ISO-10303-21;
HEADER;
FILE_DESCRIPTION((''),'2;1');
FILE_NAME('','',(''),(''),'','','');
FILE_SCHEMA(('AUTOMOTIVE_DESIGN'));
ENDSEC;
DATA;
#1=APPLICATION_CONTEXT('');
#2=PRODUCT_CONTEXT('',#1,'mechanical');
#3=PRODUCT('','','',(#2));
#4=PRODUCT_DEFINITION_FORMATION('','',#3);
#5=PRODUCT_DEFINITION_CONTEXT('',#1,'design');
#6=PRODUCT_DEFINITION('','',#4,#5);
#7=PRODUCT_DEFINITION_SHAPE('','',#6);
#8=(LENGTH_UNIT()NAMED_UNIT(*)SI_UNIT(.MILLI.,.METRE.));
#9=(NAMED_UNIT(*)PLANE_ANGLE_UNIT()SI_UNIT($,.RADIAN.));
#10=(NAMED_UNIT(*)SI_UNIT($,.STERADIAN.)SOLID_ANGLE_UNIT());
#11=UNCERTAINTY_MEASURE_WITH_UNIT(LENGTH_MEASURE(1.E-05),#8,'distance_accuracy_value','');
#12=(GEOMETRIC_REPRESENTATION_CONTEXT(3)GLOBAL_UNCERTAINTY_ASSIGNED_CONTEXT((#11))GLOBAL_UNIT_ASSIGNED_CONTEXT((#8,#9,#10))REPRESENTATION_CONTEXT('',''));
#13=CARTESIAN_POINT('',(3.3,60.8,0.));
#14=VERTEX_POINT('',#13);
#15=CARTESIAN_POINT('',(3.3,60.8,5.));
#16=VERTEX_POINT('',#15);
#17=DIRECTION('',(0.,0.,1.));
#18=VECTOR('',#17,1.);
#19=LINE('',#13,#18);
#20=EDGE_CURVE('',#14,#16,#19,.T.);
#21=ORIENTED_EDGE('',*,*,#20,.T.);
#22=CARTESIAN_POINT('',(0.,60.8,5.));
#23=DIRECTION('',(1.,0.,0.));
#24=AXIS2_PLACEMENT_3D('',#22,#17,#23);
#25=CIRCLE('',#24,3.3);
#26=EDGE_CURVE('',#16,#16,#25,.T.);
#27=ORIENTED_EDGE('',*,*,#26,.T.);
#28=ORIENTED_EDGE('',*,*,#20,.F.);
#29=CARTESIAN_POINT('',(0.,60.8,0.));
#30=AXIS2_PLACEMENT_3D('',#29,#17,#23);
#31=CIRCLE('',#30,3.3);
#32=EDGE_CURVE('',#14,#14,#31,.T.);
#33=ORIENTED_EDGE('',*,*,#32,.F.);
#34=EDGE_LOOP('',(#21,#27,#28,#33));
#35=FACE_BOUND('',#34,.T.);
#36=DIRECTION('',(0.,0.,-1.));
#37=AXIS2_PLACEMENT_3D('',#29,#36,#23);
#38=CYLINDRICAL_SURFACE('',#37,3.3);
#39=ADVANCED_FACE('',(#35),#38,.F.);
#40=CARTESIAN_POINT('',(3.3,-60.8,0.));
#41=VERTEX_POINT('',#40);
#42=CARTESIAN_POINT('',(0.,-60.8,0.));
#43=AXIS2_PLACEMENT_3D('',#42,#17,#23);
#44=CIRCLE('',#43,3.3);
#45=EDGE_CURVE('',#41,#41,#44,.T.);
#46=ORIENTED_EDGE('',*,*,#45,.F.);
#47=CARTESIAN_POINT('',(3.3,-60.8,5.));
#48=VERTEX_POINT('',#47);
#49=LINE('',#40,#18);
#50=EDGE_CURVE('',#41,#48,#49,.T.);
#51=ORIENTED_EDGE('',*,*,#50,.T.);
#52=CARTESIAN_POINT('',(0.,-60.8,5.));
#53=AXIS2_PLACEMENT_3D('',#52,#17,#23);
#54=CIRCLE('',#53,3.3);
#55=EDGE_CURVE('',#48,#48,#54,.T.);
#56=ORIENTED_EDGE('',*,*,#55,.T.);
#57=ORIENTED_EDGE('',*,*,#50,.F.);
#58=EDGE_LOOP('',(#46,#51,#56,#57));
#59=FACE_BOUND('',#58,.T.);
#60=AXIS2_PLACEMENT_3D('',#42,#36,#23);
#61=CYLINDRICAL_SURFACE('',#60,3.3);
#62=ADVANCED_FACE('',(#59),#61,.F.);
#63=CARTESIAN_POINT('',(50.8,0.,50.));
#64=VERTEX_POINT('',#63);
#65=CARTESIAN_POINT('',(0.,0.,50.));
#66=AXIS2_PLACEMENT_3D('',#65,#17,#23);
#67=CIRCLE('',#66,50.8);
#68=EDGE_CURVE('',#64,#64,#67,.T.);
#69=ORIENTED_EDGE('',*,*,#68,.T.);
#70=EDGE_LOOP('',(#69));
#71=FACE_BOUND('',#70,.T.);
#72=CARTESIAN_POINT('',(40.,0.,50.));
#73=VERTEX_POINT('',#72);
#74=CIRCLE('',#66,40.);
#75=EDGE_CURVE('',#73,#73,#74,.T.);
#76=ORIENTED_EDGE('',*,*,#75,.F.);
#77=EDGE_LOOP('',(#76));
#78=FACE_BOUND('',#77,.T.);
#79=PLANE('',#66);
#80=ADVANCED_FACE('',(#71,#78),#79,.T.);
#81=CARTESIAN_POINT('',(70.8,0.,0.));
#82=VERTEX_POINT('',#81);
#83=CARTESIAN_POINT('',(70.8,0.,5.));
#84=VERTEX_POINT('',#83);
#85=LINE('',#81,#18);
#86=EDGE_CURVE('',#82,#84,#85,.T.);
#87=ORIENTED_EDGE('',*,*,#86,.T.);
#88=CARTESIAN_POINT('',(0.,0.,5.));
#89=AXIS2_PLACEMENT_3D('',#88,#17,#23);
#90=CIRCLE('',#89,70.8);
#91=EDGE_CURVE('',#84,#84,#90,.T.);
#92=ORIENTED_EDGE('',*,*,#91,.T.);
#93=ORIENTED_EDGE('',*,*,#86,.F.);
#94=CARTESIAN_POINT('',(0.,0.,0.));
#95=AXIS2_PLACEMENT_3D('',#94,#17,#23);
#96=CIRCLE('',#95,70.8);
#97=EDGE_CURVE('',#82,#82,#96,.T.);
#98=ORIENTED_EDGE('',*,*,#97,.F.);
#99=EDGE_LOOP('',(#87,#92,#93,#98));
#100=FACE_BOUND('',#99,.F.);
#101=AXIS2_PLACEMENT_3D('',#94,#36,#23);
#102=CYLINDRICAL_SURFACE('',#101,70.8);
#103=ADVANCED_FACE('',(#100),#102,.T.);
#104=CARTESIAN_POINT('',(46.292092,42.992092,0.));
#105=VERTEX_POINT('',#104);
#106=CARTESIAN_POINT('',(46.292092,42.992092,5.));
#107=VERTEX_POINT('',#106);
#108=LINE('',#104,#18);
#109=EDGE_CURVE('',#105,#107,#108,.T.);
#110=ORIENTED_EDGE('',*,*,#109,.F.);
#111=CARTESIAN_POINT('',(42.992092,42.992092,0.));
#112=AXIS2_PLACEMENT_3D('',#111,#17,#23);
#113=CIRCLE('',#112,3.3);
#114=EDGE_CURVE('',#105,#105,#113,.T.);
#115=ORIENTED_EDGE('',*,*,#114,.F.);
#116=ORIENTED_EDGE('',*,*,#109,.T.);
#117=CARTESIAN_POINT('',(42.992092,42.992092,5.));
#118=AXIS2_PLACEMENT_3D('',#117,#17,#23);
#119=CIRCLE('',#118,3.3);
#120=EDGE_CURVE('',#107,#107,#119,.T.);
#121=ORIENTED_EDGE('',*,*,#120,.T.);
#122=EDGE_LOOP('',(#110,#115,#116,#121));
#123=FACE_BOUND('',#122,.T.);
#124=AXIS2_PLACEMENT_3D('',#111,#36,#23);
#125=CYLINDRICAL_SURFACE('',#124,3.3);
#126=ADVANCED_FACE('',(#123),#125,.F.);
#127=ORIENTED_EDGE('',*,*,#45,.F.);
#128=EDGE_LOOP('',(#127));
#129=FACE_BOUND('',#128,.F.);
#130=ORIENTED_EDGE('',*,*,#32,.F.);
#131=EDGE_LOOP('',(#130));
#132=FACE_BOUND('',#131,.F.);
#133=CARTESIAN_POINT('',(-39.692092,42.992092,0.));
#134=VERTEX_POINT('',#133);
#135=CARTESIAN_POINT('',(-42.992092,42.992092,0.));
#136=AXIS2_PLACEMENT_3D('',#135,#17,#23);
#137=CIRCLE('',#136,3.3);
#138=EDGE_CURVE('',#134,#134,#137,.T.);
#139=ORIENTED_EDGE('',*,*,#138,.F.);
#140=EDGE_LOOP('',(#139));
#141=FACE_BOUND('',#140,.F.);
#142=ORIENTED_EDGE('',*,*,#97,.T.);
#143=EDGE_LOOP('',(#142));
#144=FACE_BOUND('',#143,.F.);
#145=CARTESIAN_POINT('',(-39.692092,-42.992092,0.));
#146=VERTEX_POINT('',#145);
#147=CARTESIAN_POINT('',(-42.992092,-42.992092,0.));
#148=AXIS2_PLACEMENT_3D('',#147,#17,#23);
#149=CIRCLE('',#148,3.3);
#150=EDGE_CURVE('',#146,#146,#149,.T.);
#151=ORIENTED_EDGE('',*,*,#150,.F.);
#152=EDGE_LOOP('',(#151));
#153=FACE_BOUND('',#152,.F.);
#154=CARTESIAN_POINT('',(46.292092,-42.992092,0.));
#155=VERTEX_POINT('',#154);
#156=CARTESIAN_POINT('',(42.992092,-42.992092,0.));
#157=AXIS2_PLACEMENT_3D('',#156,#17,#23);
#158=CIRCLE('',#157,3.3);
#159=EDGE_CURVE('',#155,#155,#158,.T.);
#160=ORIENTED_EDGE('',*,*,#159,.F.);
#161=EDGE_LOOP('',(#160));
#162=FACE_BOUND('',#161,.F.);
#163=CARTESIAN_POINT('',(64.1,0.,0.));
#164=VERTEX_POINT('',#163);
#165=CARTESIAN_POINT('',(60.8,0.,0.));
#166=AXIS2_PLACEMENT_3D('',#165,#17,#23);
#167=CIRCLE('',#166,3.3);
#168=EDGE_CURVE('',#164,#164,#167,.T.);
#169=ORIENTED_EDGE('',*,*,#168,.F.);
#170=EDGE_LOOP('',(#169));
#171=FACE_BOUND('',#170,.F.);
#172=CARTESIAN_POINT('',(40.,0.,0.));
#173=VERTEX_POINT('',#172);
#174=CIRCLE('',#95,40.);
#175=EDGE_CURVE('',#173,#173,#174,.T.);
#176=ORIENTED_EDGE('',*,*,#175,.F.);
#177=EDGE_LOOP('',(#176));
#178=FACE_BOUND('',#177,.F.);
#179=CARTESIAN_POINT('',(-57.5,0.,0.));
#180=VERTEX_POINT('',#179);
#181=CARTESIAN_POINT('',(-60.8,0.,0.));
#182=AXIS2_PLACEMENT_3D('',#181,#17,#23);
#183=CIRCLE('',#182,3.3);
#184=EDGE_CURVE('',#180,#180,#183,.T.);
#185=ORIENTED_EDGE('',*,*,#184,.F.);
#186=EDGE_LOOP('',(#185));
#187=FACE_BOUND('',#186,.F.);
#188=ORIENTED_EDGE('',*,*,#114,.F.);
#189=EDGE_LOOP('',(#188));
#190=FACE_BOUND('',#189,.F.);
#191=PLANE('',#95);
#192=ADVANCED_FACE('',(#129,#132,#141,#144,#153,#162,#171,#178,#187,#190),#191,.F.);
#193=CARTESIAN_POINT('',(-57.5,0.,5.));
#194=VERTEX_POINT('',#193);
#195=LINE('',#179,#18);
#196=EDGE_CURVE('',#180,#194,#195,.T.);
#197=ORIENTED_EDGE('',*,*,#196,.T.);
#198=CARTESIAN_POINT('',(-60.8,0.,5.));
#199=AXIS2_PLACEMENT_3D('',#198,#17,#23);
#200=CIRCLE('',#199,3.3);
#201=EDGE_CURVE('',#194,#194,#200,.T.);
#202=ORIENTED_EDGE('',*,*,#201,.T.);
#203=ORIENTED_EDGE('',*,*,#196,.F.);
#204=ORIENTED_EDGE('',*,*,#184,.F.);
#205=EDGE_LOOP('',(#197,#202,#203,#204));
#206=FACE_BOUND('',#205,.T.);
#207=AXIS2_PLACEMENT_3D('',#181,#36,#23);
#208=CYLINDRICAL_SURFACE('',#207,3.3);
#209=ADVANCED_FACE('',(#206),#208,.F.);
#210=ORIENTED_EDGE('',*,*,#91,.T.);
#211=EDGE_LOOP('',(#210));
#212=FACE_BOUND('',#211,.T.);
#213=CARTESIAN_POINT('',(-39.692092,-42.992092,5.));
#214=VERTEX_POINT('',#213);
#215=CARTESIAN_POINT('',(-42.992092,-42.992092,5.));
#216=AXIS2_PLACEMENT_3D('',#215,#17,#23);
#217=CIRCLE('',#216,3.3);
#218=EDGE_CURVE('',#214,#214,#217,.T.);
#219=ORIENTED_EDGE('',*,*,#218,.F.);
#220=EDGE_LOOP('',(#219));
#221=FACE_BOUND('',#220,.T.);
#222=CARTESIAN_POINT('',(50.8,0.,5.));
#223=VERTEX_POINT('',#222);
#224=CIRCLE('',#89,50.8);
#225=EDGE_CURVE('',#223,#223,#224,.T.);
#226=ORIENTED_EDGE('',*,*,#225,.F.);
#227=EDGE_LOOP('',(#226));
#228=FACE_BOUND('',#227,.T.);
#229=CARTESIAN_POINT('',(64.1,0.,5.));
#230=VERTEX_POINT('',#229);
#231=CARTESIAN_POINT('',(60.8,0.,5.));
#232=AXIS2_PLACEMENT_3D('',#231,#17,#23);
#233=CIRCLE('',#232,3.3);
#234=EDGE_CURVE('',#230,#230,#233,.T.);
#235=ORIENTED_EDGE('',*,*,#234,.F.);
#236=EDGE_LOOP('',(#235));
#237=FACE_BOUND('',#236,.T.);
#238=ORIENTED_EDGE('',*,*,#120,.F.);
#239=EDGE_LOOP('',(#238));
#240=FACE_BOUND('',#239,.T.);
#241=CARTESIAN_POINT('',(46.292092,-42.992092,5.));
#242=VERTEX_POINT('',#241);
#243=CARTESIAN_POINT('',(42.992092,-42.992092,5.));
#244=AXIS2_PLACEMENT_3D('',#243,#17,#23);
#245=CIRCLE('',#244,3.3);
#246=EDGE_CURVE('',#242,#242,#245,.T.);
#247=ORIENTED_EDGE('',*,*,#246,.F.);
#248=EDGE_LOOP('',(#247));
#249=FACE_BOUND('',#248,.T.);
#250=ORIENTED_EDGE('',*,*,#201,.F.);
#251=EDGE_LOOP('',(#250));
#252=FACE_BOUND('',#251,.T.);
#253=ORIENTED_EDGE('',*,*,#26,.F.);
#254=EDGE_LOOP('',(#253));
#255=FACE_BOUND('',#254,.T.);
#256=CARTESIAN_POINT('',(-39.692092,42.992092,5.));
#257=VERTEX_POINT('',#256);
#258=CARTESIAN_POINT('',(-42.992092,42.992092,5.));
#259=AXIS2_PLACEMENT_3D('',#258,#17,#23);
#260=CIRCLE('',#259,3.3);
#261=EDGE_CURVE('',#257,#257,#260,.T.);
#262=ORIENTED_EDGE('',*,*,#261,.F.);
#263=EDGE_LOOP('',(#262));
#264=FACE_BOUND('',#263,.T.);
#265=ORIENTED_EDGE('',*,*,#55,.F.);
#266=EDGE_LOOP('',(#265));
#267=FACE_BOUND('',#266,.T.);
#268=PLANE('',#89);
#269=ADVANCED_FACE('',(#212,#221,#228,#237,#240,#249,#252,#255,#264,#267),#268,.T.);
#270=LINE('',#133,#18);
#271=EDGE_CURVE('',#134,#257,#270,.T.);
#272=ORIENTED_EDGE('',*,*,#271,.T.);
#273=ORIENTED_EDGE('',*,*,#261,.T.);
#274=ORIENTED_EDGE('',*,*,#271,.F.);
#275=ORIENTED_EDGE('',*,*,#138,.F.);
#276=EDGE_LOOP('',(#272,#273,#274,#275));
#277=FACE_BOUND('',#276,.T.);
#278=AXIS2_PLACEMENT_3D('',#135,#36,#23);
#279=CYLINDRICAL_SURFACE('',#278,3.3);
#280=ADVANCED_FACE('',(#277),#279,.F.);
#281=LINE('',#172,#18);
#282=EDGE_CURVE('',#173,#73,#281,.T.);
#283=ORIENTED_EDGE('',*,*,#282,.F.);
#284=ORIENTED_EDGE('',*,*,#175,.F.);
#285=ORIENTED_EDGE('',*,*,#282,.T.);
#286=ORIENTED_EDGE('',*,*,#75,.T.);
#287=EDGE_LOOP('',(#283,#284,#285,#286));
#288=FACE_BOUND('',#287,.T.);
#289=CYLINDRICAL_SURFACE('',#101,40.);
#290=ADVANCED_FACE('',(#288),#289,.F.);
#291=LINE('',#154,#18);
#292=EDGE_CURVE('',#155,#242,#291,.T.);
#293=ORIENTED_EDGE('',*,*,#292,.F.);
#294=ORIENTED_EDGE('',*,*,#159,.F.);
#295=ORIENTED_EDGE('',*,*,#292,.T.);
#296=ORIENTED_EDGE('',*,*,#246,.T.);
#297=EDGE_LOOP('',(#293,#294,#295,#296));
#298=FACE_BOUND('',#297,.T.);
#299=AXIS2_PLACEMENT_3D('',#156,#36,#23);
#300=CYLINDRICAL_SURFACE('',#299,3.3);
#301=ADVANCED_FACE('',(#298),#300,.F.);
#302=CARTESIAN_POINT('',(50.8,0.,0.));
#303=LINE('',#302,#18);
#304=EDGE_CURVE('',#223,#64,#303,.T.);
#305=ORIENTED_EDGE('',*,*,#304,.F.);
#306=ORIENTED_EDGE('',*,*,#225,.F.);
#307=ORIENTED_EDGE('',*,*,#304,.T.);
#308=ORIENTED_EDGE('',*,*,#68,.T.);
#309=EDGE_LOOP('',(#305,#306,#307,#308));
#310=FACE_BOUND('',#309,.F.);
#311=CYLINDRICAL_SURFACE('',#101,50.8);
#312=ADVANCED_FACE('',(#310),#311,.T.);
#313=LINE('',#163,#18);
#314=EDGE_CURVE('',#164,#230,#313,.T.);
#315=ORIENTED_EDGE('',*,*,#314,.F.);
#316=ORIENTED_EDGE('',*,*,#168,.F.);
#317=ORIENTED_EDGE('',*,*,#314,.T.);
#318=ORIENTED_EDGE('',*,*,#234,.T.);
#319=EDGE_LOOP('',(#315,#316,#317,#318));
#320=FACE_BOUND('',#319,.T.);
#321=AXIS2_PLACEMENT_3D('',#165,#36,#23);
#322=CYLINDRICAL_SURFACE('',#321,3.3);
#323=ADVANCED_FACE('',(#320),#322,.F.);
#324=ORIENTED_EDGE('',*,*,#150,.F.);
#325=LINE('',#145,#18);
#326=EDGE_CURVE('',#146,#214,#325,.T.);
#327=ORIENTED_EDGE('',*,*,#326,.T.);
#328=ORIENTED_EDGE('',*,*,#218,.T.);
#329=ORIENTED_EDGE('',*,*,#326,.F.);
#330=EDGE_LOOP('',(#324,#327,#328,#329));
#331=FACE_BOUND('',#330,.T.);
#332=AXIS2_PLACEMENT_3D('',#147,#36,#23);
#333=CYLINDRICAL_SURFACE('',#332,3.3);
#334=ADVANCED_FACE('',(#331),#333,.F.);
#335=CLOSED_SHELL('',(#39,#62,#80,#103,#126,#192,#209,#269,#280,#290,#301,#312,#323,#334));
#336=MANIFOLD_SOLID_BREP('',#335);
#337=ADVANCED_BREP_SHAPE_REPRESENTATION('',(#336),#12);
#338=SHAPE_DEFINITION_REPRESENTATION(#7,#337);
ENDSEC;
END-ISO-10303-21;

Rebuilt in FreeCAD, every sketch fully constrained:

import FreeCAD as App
import Part
import Sketcher
from FreeCAD import Vector
Q = App.Units.Quantity

doc = App.newDocument("Part")
body = doc.addObject("PartDesign::Body", "Body")

# Sketch on XY plane
sketch1 = body.newObject("Sketcher::SketchObject", "Sketch")
sketch1.AttachmentSupport = (doc.getObject("XY_Plane"), [""])
sketch1.MapMode = "FlatFace"
sketch1.addGeometry(Part.Circle(Vector(0, 0, 0), Vector(0, 0, 1), 51), False)
sketch1.addGeometry(Part.Circle(Vector(0, 0, 0), Vector(0, 0, 1), 40), False)
sketch1.addConstraint(Sketcher.Constraint("Coincident", 0, 3, -1, 1))
sketch1.addConstraint(Sketcher.Constraint("Coincident", 1, 3, -1, 1))
sketch1.addConstraint(Sketcher.Constraint("Diameter", 1, Q("80 mm")))
sketch1.addConstraint(Sketcher.Constraint("Diameter", 0, Q("101.6 mm")))
pad1 = body.newObject("PartDesign::Pad", "Pad")
pad1.Profile = sketch1
pad1.Length = 50

# Sketch on XY plane
sketch2 = body.newObject("Sketcher::SketchObject", "Sketch001")
sketch2.AttachmentSupport = (doc.getObject("XY_Plane"), [""])
sketch2.MapMode = "FlatFace"
sketch2.addGeometry(Part.Circle(Vector(0, 0, 0), Vector(0, 0, 1), 70.8), False)
sketch2.addGeometry(Part.Circle(Vector(-43, -43, 0), Vector(0, 0, 1), 3.3), False)
sketch2.addGeometry(Part.Circle(Vector(0, -60.8, 0), Vector(0, 0, 1), 3.3), False)
sketch2.addGeometry(Part.Circle(Vector(43, -43, 0), Vector(0, 0, 1), 3.3), False)
sketch2.addGeometry(Part.Circle(Vector(-60.8, 0, 0), Vector(0, 0, 1), 3.3), False)
sketch2.addGeometry(Part.Circle(Vector(-43, 43, 0), Vector(0, 0, 1), 3.3), False)
sketch2.addGeometry(Part.Circle(Vector(0, 0, 0), Vector(0, 0, 1), 50.8), False)
sketch2.addGeometry(Part.Circle(Vector(60.8, 0, 0), Vector(0, 0, 1), 3.3), False)
sketch2.addGeometry(Part.Circle(Vector(0, 60.8, 0), Vector(0, 0, 1), 3.3), False)
sketch2.addGeometry(Part.Circle(Vector(43, 43, 0), Vector(0, 0, 1), 3.3), False)
sketch2.addConstraint(Sketcher.Constraint("Coincident", 0, 3, -1, 1))
sketch2.addConstraint(Sketcher.Constraint("Coincident", 6, 3, -1, 1))
sketch2.addConstraint(Sketcher.Constraint("Equal", 1, 2))
sketch2.addConstraint(Sketcher.Constraint("Equal", 2, 3))
sketch2.addConstraint(Sketcher.Constraint("Equal", 3, 4))
sketch2.addConstraint(Sketcher.Constraint("Equal", 4, 5))
sketch2.addConstraint(Sketcher.Constraint("Equal", 5, 7))
sketch2.addConstraint(Sketcher.Constraint("Equal", 7, 8))
sketch2.addConstraint(Sketcher.Constraint("Equal", 8, 9))
sketch2.addConstraint(Sketcher.Constraint("Symmetric", 3, 3, 5, 3, -1, 1))
sketch2.addConstraint(Sketcher.Constraint("Symmetric", 4, 3, 7, 3, -1, 1))
sketch2.addConstraint(Sketcher.Constraint("Symmetric", 2, 3, 8, 3, -1, 1))
sketch2.addConstraint(Sketcher.Constraint("Symmetric", 1, 3, 9, 3, -1, 1))
sketch2.addConstraint(Sketcher.Constraint("Symmetric", 1, 3, 3, 3, -2))
sketch2.addConstraint(Sketcher.Constraint("PointOnObject", 2, 3, -2))
sketch2.addConstraint(Sketcher.Constraint("PointOnObject", 4, 3, -1))
sketch2.addConstraint(Sketcher.Constraint("Diameter", 0, Q("141.6 mm")))
sketch2.addConstraint(Sketcher.Constraint("Diameter", 1, Q("6.6 mm")))
sketch2.addConstraint(Sketcher.Constraint("Diameter", 6, Q("101.6 mm")))
sketch2.addConstraint(Sketcher.Constraint("DistanceY", 2, 3, -1, 1, Q("60.8 mm")))
sketch2.addConstraint(Sketcher.Constraint("DistanceX", 4, 3, -1, 1, Q("60.8 mm")))
sketch2.addConstraint(Sketcher.Constraint("DistanceX", 4, 3, 3, 3, Q("103.792092 mm")))
sketch2.addConstraint(Sketcher.Constraint("DistanceY", 2, 3, 5, 3, Q("103.792092 mm")))
pad2 = body.newObject("PartDesign::Pad", "Pad001")
pad2.Profile = sketch2
pad2.Length = 5

doc.recompute()
